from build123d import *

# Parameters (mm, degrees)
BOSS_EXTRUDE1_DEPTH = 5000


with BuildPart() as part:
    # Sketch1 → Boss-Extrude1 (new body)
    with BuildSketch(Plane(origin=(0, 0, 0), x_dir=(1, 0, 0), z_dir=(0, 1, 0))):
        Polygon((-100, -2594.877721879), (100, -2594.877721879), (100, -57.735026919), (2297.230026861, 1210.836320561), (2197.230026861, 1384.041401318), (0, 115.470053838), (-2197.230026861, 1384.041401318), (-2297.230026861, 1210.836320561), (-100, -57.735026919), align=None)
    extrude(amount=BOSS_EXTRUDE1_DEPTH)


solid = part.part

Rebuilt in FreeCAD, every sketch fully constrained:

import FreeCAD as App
import Part
import Sketcher

V = App.Vector
Q = App.Units.Quantity


def add_polygon(sketch, points):
    """Adds a closed chain of lines whose ends are joined by coincident constraints."""
    first, n = sketch.GeometryCount, len(points)
    for a, b in zip(points, points[1:] + points[:1]):
        sketch.addGeometry(Part.LineSegment(App.Vector(*a, 0), App.Vector(*b, 0)), False)
    for i in range(n):
        sketch.addConstraint(Sketcher.Constraint("Coincident", first + i, 2, first + (i + 1) % n, 1))

doc = App.newDocument("Part")
body = doc.addObject("PartDesign::Body", "Body")

# Sketch on XZ plane
sketch1 = body.newObject("Sketcher::SketchObject", "Sketch")
sketch1.AttachmentSupport = (doc.getObject("XZ_Plane"), [""])
sketch1.MapMode = "FlatFace"
add_polygon(sketch1, [(-100, 2595), (100, 2595), (100, 58), (2297, -1211), (2197, -1384), (0, -115), (-2197, -1384), (-2297, -1211), (-100, 58)])  # lines 0-8
sketch1.addConstraint([
    Sketcher.Constraint("Horizontal", 0),
    Sketcher.Constraint("Vertical", 1),
    Sketcher.Constraint("Vertical", 8),
    Sketcher.Constraint("Symmetric", 3, 2, 5, 2, -2),
    Sketcher.Constraint("Symmetric", 2, 2, 6, 2, -2),
    Sketcher.Constraint("Symmetric", 1, 2, 7, 2, -2),
    Sketcher.Constraint("PointOnObject", 4, 2, -2),
    Sketcher.Constraint("Perpendicular", 2, 3),
    Sketcher.Constraint("Perpendicular", 3, 4),
    Sketcher.Constraint("Equal", 2, 4),
    Sketcher.Constraint("DistanceX", 0, 1, 0, 2, Q("200 mm")),
    Sketcher.Constraint("Angle", 2, Q("-30 deg")),
    Sketcher.Constraint("DistanceY", 3, 2, -1, 1, Q("1384.041401 mm")),
    Sketcher.Constraint("DistanceY", 1, 2, 1, 1, Q("2537.142695 mm")),
    Sketcher.Constraint("DistanceY", -1, 1, 0, 2, Q("2594.877722 mm")),
])
pad1 = body.newObject("PartDesign::Pad", "Pad")
pad1.Profile = sketch1
pad1.Length = 5000
pad1.Reversed = True

doc.recompute()
